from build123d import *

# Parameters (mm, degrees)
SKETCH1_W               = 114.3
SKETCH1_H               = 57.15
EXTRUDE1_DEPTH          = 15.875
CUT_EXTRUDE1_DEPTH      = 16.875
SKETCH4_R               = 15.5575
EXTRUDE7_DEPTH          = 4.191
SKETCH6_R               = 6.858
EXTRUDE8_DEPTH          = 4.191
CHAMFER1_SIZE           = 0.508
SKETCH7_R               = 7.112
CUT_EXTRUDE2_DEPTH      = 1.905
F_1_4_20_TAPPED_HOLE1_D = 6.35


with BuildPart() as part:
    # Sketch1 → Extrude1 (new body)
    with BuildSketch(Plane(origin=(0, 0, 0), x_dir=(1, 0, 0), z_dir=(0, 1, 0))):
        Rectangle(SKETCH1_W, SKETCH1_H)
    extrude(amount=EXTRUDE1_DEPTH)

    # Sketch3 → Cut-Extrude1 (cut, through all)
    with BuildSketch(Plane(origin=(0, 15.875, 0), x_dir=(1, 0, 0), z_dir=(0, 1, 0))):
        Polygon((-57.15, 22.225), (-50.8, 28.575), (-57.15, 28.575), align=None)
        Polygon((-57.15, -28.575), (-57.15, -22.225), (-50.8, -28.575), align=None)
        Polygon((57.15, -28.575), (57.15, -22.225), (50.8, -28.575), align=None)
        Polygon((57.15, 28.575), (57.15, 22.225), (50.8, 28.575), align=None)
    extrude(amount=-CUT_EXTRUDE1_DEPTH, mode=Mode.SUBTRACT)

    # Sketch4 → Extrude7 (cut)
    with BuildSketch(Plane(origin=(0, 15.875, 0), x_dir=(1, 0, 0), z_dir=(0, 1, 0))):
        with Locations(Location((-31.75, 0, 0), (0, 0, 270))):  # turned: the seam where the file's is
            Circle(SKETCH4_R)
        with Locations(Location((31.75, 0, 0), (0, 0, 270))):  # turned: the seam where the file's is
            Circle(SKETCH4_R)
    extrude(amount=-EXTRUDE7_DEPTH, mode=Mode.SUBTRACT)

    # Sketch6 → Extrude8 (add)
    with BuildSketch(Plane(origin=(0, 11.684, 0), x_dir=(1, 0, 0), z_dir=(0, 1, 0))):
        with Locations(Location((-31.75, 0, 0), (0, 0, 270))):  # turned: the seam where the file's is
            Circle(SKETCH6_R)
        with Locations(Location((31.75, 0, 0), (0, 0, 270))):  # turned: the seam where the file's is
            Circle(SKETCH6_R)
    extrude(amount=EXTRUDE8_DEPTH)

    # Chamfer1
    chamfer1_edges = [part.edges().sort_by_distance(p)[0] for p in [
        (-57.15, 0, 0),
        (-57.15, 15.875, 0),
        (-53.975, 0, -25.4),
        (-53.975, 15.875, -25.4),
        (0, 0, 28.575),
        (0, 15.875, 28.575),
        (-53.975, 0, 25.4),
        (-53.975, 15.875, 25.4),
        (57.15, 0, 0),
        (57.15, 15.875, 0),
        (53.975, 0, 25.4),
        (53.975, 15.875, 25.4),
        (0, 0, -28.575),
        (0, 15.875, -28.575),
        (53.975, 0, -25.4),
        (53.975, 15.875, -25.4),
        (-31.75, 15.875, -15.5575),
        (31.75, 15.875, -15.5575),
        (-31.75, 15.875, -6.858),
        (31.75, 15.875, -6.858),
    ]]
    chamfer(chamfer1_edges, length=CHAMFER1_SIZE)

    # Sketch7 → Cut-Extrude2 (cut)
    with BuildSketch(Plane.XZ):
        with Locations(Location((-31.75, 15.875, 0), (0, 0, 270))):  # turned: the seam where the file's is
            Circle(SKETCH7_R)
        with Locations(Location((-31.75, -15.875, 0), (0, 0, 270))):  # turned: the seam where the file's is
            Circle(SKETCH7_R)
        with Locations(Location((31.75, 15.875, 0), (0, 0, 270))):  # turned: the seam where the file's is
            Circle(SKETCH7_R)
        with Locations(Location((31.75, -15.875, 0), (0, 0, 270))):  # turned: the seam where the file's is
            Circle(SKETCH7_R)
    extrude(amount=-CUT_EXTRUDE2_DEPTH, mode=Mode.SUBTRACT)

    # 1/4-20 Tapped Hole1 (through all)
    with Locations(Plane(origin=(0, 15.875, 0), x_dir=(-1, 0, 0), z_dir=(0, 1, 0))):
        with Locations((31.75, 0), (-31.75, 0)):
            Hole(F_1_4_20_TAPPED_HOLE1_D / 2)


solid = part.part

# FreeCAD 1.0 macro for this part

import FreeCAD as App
import Part
import Sketcher
from FreeCAD import Vector
Q = App.Units.Quantity


def edges_at(feature, points):
    """Names of the edges that pass closest to the given points."""
    edges = feature.Shape.Edges
    near = lambda p: min(range(len(edges)), key=lambda i: edges[i].distToShape(Part.Vertex(*p))[0])
    return sorted({f"Edge{near(p) + 1}" for p in points})

doc = App.newDocument("Part")
body = doc.addObject("PartDesign::Body", "Body")

# Sketch on XZ plane
sketch1 = doc.addObject("Sketcher::SketchObject", "Sketch")
body.addObject(sketch1)
sketch1.AttachmentSupport = (doc.XZ_Plane, [""])
sketch1.MapMode = "FlatFace"
sketch1.addGeometry(Part.LineSegment(Vector(-57, -29, 0), Vector(-57, 29, 0)), False)
sketch1.addGeometry(Part.LineSegment(Vector(-57, 29, 0), Vector(57, 29, 0)), False)
sketch1.addGeometry(Part.LineSegment(Vector(57, 29, 0), Vector(57, -29, 0)), False)
sketch1.addGeometry(Part.LineSegment(Vector(57, -29, 0), Vector(-57, -29, 0)), False)
sketch1.addConstraint(Sketcher.Constraint("Coincident", 0, 2, 1, 1))
sketch1.addConstraint(Sketcher.Constraint("Coincident", 1, 2, 2, 1))
sketch1.addConstraint(Sketcher.Constraint("Coincident", 2, 2, 3, 1))
sketch1.addConstraint(Sketcher.Constraint("Coincident", 3, 2, 0, 1))
sketch1.addConstraint(Sketcher.Constraint("Vertical", 0))
sketch1.addConstraint(Sketcher.Constraint("Horizontal", 1))
sketch1.addConstraint(Sketcher.Constraint("Vertical", 2))
sketch1.addConstraint(Sketcher.Constraint("Horizontal", 3))
sketch1.addConstraint(Sketcher.Constraint("Symmetric", 0, 2, 2, 2, -1, 1))
sketch1.addConstraint(Sketcher.Constraint("DistanceX", 1, 1, 1, 2, Q("4.5 in")))
sketch1.addConstraint(Sketcher.Constraint("DistanceY", 0, 1, 0, 2, Q("2.25 in")))
pad1 = doc.addObject("PartDesign::Pad", "Pad")
body.addObject(pad1)
pad1.Profile = sketch1
pad1.Length = Q("0.625 in")
pad1.Reversed = True

# Sketch on XZ plane
sketch2 = doc.addObject("Sketcher::SketchObject", "Sketch001")
body.addObject(sketch2)
sketch2.AttachmentSupport = (doc.XZ_Plane, [""])
sketch2.MapMode = "FlatFace"
sketch2.AttachmentOffset = App.Placement(Vector(0, 0, -0.625 * 25.4), App.Rotation())
sketch2.addGeometry(Part.LineSegment(Vector(-57, -22, 0), Vector(-51, -29, 0)), False)
sketch2.addGeometry(Part.LineSegment(Vector(-51, -29, 0), Vector(-57, -29, 0)), False)
sketch2.addGeometry(Part.LineSegment(Vector(-57, -29, 0), Vector(-57, -22, 0)), False)
sketch2.addGeometry(Part.LineSegment(Vector(-57, 22, 0), Vector(-57, 29, 0)), False)
sketch2.addGeometry(Part.LineSegment(Vector(-57, 29, 0), Vector(-51, 29, 0)), False)
sketch2.addGeometry(Part.LineSegment(Vector(-51, 29, 0), Vector(-57, 22, 0)), False)
sketch2.addGeometry(Part.LineSegment(Vector(57, 29, 0), Vector(57, 22, 0)), False)
sketch2.addGeometry(Part.LineSegment(Vector(57, 22, 0), Vector(51, 29, 0)), False)
sketch2.addGeometry(Part.LineSegment(Vector(51, 29, 0), Vector(57, 29, 0)), False)
sketch2.addGeometry(Part.LineSegment(Vector(57, -22, 0), Vector(57, -29, 0)), False)
sketch2.addGeometry(Part.LineSegment(Vector(57, -29, 0), Vector(51, -29, 0)), False)
sketch2.addGeometry(Part.LineSegment(Vector(51, -29, 0), Vector(57, -22, 0)), False)
sketch2.addConstraint(Sketcher.Constraint("Coincident", 0, 2, 1, 1))
sketch2.addConstraint(Sketcher.Constraint("Coincident", 1, 2, 2, 1))
sketch2.addConstraint(Sketcher.Constraint("Coincident", 2, 2, 0, 1))
sketch2.addConstraint(Sketcher.Constraint("Coincident", 3, 2, 4, 1))
sketch2.addConstraint(Sketcher.Constraint("Coincident", 4, 2, 5, 1))
sketch2.addConstraint(Sketcher.Constraint("Coincident", 5, 2, 3, 1))
sketch2.addConstraint(Sketcher.Constraint("Coincident", 6, 2, 7, 1))
sketch2.addConstraint(Sketcher.Constraint("Coincident", 7, 2, 8, 1))
sketch2.addConstraint(Sketcher.Constraint("Coincident", 8, 2, 6, 1))
sketch2.addConstraint(Sketcher.Constraint("Coincident", 9, 2, 10, 1))
sketch2.addConstraint(Sketcher.Constraint("Coincident", 10, 2, 11, 1))
sketch2.addConstraint(Sketcher.Constraint("Coincident", 11, 2, 9, 1))
sketch2.addConstraint(Sketcher.Constraint("Horizontal", 1))
sketch2.addConstraint(Sketcher.Constraint("Vertical", 2))
sketch2.addConstraint(Sketcher.Constraint("Vertical", 3))
sketch2.addConstraint(Sketcher.Constraint("Horizontal", 4))
sketch2.addConstraint(Sketcher.Constraint("Vertical", 6))
sketch2.addConstraint(Sketcher.Constraint("Horizontal", 8))
sketch2.addConstraint(Sketcher.Constraint("Vertical", 9))
sketch2.addConstraint(Sketcher.Constraint("Horizontal", 10))
sketch2.addConstraint(Sketcher.Constraint("Symmetric", 2, 2, 6, 2, -1, 1))
sketch2.addConstraint(Sketcher.Constraint("Symmetric", 0, 2, 7, 2, -1, 1))
sketch2.addConstraint(Sketcher.Constraint("Symmetric", 3, 2, 9, 2, -1, 1))
sketch2.addConstraint(Sketcher.Constraint("Symmetric", 5, 2, 6, 2, -2))
sketch2.addConstraint(Sketcher.Constraint("Symmetric", 4, 2, 7, 2, -2))
sketch2.addConstraint(Sketcher.Constraint("Perpendicular", 0, 5))
sketch2.addConstraint(Sketcher.Constraint("Perpendicular", 7, 11))
sketch2.addConstraint(Sketcher.Constraint("Horizontal", 2, 2, 11, 2))
sketch2.addConstraint(Sketcher.Constraint("DistanceX", 0, 2, -1, 1, Q("2 in")))
sketch2.addConstraint(Sketcher.Constraint("DistanceY", 2, 2, 3, 2, Q("2 in")))
sketch2.addConstraint(Sketcher.Constraint("DistanceX", 1, 2, 1, 1, Q("0.25 in")))
pocket1 = doc.addObject("PartDesign::Pocket", "Pocket")
body.addObject(pocket1)
pocket1.Profile = sketch2
pocket1.Type = "ThroughAll"
pocket1.Reversed = True

# Sketch on XZ plane
sketch3 = doc.addObject("Sketcher::SketchObject", "Sketch002")
body.addObject(sketch3)
sketch3.AttachmentSupport = (doc.XZ_Plane, [""])
sketch3.MapMode = "FlatFace"
sketch3.AttachmentOffset = App.Placement(Vector(0, 0, -0.625 * 25.4), App.Rotation())
sketch3.addGeometry(Part.Circle(Vector(-32, 0, 0), Vector(0, 0, 1), 16), False)
sketch3.addGeometry(Part.Circle(Vector(32, 0, 0), Vector(0, 0, 1), 16), False)
sketch3.addConstraint(Sketcher.Constraint("Equal", 0, 1))
sketch3.addConstraint(Sketcher.Constraint("Symmetric", 0, 3, 1, 3, -1, 1))
sketch3.addConstraint(Sketcher.Constraint("PointOnObject", 0, 3, -1))
sketch3.addConstraint(Sketcher.Constraint("Diameter", 0, Q("1.225 in")))
sketch3.addConstraint(Sketcher.Constraint("DistanceX", 0, 3, 1, 3, Q("2.5 in")))
pocket2 = doc.addObject("PartDesign::Pocket", "Pocket001")
body.addObject(pocket2)
pocket2.Profile = sketch3
pocket2.Length = Q("0.165 in")
pocket2.Reversed = True

# Sketch on XZ plane
sketch4 = doc.addObject("Sketcher::SketchObject", "Sketch003")
body.addObject(sketch4)
sketch4.AttachmentSupport = (doc.XZ_Plane, [""])
sketch4.MapMode = "FlatFace"
sketch4.AttachmentOffset = App.Placement(Vector(0, 0, -0.46 * 25.4), App.Rotation())
sketch4.addGeometry(Part.Circle(Vector(-32, 0, 0), Vector(0, 0, 1), 7), False)
sketch4.addGeometry(Part.Circle(Vector(32, 0, 0), Vector(0, 0, 1), 7), False)
sketch4.addConstraint(Sketcher.Constraint("Equal", 0, 1))
sketch4.addConstraint(Sketcher.Constraint("Symmetric", 0, 3, 1, 3, -1, 1))
sketch4.addConstraint(Sketcher.Constraint("PointOnObject", 0, 3, -1))
sketch4.addConstraint(Sketcher.Constraint("Diameter", 0, Q("0.54 in")))
sketch4.addConstraint(Sketcher.Constraint("DistanceX", 0, 3, 1, 3, Q("2.5 in")))
pad2 = doc.addObject("PartDesign::Pad", "Pad001")
body.addObject(pad2)
pad2.Profile = sketch4
pad2.Length = Q("0.165 in")
pad2.Reversed = True
doc.recompute()

chamfer = doc.addObject("PartDesign::Chamfer", "Chamfer")
body.addObject(chamfer)
chamfer.Base = (pad2, edges_at(pad2, [
    (-57.15, 0, 0),
    (-57.15, 15.875, 0),
    (-53.975, 0, -25.4),
    (-53.975, 15.875, -25.4),
    (0, 0, 28.575),
    (0, 15.875, 28.575),
    (-53.975, 0, 25.4),
    (-53.975, 15.875, 25.4),
    (57.15, 0, 0),
    (57.15, 15.875, 0),
    (53.975, 0, 25.4),
    (53.975, 15.875, 25.4),
    (0, 0, -28.575),
    (0, 15.875, -28.575),
    (53.975, 0, -25.4),
    (53.975, 15.875, -25.4),
    (-31.75, 15.875, -15.557),
    (31.75, 15.875, -15.557),
    (-31.75, 15.875, -6.858),
    (31.75, 15.875, -6.858),
]))
chamfer.Size = Q("0.02 in")

# Sketch on XZ plane
sketch5 = doc.addObject("Sketcher::SketchObject", "Sketch004")
body.addObject(sketch5)
sketch5.AttachmentSupport = (doc.XZ_Plane, [""])
sketch5.MapMode = "FlatFace"
sketch5.addGeometry(Part.Circle(Vector(-32, 16, 0), Vector(0, 0, 1), 7), False)
sketch5.addGeometry(Part.Circle(Vector(-32, -16, 0), Vector(0, 0, 1), 7), False)
sketch5.addGeometry(Part.Circle(Vector(32, 16, 0), Vector(0, 0, 1), 7), False)
sketch5.addGeometry(Part.Circle(Vector(32, -16, 0), Vector(0, 0, 1), 7), False)
sketch5.addConstraint(Sketcher.Constraint("Equal", 0, 1))
sketch5.addConstraint(Sketcher.Constraint("Equal", 1, 2))
sketch5.addConstraint(Sketcher.Constraint("Equal", 2, 3))
sketch5.addConstraint(Sketcher.Constraint("Symmetric", 1, 3, 2, 3, -1, 1))
sketch5.addConstraint(Sketcher.Constraint("Symmetric", 0, 3, 3, 3, -1, 1))
sketch5.addConstraint(Sketcher.Constraint("Symmetric", 0, 3, 2, 3, -2))
sketch5.addConstraint(Sketcher.Constraint("Diameter", 0, Q("0.56 in")))
sketch5.addConstraint(Sketcher.Constraint("DistanceX", 0, 3, 2, 3, Q("2.5 in")))
sketch5.addConstraint(Sketcher.Constraint("DistanceY", 1, 3, 0, 3, Q("1.25 in")))
pocket3 = doc.addObject("PartDesign::Pocket", "Pocket002")
body.addObject(pocket3)
pocket3.Profile = sketch5
pocket3.Length = Q("0.075 in")

# Sketch on XZ plane
sketch6 = doc.addObject("Sketcher::SketchObject", "Sketch005")
body.addObject(sketch6)
sketch6.AttachmentSupport = (doc.XZ_Plane, [""])
sketch6.MapMode = "FlatFace"
sketch6.AttachmentOffset = App.Placement(Vector(0, 0, -0.625 * 25.4), App.Rotation())
sketch6.addGeometry(Part.Circle(Vector(-31.8, 0, 0), Vector(0, 0, 1), 3.2), False)
sketch6.addGeometry(Part.Circle(Vector(31.8, 0, 0), Vector(0, 0, 1), 3.2), False)
sketch6.addConstraint(Sketcher.Constraint("Equal", 0, 1))
sketch6.addConstraint(Sketcher.Constraint("Symmetric", 0, 3, 1, 3, -1, 1))
sketch6.addConstraint(Sketcher.Constraint("PointOnObject", 0, 3, -1))
sketch6.addConstraint(Sketcher.Constraint("Diameter", 0, Q("0.25 in")))
sketch6.addConstraint(Sketcher.Constraint("DistanceX", 0, 3, 1, 3, Q("2.5 in")))
doc.recompute()
hole = doc.addObject("PartDesign::Hole", "Hole")
body.addObject(hole)
hole.Profile = sketch6
hole.ThreadType = "None"
hole.Diameter = Q("0.25 in")
hole.DepthType = "ThroughAll"
hole.Reversed = True

doc.recompute()
